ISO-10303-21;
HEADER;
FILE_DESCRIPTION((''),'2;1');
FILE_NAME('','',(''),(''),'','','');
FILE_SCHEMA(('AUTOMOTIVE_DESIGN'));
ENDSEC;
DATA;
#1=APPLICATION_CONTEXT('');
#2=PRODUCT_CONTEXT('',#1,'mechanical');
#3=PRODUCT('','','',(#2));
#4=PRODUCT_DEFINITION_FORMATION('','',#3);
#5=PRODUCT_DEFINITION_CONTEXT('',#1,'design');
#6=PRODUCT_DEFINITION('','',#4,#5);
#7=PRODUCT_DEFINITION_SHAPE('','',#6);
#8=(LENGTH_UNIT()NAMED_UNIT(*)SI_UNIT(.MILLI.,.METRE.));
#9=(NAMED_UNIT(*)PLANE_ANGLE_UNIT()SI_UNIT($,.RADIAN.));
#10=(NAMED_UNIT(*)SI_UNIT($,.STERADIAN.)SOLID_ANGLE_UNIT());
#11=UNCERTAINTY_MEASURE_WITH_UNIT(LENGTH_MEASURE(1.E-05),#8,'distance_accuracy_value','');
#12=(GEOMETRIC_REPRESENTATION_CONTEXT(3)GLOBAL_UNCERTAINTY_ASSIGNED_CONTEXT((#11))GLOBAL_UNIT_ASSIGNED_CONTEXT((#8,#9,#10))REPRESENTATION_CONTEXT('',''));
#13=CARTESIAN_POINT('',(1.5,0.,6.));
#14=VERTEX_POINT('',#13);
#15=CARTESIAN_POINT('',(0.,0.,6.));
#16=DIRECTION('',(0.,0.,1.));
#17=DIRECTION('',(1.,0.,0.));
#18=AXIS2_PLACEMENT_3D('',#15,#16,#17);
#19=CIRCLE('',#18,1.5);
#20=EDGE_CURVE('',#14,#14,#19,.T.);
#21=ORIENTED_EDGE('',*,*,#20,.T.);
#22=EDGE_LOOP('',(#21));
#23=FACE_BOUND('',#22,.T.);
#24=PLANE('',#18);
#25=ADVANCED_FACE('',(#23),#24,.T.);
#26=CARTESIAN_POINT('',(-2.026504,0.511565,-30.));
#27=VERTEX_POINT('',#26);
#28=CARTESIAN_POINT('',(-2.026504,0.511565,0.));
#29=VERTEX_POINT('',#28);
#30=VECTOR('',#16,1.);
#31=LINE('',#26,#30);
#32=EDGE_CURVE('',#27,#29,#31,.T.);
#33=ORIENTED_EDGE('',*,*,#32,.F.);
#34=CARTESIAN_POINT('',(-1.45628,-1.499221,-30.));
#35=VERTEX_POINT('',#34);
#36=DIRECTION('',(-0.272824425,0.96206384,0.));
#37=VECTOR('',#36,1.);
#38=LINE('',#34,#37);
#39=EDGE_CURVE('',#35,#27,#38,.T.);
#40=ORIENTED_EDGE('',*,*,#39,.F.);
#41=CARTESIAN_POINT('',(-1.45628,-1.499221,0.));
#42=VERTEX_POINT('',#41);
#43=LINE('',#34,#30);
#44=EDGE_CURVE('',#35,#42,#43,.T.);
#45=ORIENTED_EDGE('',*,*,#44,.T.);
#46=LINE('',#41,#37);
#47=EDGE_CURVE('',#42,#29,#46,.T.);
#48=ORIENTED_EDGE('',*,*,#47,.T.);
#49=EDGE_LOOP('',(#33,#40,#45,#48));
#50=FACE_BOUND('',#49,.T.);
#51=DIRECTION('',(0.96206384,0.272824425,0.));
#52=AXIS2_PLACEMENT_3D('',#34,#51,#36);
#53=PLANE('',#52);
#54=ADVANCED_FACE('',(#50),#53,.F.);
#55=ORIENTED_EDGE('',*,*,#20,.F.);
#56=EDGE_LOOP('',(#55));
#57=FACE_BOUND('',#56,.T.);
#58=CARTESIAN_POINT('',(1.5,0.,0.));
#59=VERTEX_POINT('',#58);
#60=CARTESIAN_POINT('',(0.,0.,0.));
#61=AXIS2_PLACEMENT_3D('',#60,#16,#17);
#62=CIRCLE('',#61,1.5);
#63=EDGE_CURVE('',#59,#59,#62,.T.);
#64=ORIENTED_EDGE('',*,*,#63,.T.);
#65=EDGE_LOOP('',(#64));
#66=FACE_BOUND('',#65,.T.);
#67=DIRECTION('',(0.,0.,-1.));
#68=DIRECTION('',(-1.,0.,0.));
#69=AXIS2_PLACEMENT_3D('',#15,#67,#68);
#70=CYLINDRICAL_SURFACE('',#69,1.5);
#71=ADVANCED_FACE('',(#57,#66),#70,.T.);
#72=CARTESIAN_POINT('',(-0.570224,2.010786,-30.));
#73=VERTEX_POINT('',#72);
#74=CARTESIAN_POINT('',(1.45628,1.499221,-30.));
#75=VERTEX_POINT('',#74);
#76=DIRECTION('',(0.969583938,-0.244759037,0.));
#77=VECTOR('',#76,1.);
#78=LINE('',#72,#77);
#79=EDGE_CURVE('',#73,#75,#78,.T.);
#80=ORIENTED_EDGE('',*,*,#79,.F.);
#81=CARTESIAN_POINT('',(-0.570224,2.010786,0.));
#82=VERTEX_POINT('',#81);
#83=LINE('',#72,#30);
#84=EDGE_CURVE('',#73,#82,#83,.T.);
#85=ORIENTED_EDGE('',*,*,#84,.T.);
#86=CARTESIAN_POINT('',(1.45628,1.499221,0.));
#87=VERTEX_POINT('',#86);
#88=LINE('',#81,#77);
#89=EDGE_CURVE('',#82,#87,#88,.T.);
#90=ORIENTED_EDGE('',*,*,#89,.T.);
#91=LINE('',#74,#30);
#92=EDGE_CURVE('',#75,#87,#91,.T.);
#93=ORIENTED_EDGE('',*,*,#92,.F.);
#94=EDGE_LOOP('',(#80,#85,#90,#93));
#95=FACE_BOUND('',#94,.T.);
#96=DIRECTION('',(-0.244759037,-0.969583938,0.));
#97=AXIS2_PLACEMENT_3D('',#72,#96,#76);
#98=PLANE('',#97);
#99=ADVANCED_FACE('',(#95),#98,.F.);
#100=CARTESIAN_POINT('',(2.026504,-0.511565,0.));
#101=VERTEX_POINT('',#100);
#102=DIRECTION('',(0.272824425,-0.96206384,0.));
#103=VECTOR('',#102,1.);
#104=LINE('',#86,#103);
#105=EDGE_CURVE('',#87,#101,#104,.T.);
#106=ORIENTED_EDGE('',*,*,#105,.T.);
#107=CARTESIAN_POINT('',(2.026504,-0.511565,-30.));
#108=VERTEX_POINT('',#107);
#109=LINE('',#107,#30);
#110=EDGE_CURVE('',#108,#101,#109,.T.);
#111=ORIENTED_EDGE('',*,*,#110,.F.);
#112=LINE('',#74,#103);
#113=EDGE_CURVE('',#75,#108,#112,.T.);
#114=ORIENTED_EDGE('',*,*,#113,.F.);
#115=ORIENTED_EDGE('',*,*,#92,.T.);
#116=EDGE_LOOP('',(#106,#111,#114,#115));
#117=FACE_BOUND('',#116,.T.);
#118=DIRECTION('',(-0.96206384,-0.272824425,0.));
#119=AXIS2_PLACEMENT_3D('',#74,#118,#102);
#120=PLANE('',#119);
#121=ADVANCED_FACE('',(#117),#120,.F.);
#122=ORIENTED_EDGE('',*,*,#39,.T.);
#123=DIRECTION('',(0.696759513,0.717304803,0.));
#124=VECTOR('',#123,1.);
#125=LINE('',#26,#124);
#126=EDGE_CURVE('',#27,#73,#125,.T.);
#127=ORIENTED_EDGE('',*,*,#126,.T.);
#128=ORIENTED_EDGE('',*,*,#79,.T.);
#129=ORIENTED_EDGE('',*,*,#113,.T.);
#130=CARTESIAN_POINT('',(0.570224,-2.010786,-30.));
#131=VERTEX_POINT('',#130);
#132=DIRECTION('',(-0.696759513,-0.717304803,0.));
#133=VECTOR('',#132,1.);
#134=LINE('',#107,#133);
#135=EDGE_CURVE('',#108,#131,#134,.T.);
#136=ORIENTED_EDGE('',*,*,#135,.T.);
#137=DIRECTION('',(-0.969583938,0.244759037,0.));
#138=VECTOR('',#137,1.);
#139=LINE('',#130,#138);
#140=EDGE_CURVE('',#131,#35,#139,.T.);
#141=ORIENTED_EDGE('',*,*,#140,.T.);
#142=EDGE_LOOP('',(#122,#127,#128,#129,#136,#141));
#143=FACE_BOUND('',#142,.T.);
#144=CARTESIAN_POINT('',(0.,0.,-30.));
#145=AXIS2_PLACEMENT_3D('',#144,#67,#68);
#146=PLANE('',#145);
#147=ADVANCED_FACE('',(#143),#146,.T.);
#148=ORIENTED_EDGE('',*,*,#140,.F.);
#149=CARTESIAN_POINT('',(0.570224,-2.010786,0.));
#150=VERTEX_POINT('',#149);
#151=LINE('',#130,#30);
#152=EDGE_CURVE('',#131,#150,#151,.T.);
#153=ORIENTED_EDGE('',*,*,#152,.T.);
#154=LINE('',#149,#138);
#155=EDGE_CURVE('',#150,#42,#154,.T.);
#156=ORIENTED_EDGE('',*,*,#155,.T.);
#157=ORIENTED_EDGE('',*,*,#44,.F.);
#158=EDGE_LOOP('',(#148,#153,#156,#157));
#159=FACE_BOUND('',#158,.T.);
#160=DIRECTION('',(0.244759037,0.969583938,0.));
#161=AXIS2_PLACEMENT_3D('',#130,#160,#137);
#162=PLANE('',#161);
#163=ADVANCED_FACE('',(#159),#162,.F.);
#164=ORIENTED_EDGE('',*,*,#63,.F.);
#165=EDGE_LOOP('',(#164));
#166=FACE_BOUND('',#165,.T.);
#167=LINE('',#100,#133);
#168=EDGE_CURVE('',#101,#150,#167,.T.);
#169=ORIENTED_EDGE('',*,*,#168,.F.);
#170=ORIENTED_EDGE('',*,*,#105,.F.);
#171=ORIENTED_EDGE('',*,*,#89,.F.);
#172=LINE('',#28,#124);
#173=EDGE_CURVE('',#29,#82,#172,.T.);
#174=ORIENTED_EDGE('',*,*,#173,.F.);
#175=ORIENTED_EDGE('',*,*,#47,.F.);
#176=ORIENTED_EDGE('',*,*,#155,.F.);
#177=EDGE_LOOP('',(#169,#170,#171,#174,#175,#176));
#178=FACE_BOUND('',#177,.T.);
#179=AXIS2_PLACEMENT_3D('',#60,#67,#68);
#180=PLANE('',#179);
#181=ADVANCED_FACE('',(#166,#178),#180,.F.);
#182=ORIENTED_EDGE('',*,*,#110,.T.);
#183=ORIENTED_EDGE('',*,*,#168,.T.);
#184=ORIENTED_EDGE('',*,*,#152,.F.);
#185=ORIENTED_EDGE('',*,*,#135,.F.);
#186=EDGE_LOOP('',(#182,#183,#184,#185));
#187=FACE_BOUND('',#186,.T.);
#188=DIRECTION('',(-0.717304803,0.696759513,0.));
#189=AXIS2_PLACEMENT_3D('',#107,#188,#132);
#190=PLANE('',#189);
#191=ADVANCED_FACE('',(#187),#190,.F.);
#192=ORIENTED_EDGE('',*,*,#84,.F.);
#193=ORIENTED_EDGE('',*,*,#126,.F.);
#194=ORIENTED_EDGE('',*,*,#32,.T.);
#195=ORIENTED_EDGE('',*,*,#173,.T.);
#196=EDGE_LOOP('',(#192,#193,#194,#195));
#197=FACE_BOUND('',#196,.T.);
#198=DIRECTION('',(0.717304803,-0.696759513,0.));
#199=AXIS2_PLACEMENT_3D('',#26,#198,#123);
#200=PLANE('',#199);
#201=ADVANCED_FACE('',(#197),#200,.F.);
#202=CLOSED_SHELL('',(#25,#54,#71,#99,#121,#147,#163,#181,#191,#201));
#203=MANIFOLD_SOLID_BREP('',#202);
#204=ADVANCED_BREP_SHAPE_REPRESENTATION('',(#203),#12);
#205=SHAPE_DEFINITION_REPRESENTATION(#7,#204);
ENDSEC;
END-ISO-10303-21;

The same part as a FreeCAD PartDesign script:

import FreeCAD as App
import Part
import Sketcher
from FreeCAD import Vector

doc = App.newDocument("Part")
body = doc.addObject("PartDesign::Body", "Body")

sketch1 = body.newObject("Sketcher::SketchObject", "Sketch")
sketch1.AttachmentSupport = (doc.getObject("XY_Plane"), [""])
sketch1.MapMode = "FlatFace"
sketch1.addGeometry(Part.Circle(Vector(0, 0, 0), Vector(0, 0, 1), 1.5), False)
sketch1.addConstraint([
    Sketcher.Constraint("Coincident", 0, 3, -1, 1),
    Sketcher.Constraint("Diameter", 0, 3.0),
])
pad1 = body.newObject("PartDesign::Pad", "Pad")
pad1.Profile = sketch1
pad1.Length = 6

sketch2 = body.newObject("Sketcher::SketchObject", "Sketch001")
sketch2.AttachmentSupport = (doc.getObject("XY_Plane"), [""])
sketch2.MapMode = "FlatFace"
sketch2.addGeometry([
    Part.LineSegment(Vector(-1.5, -1.5, 0), Vector(-2, 0.5, 0)),
    Part.LineSegment(Vector(-2, 0.5, 0), Vector(-0.6, 2, 0)),
    Part.LineSegment(Vector(-0.6, 2, 0), Vector(1.5, 1.5, 0)),
    Part.LineSegment(Vector(1.5, 1.5, 0), Vector(2, -0.5, 0)),
    Part.LineSegment(Vector(2, -0.5, 0), Vector(0.6, -2, 0)),
    Part.LineSegment(Vector(0.6, -2, 0), Vector(-1.5, -1.5, 0)),
], False)
sketch2.addConstraint([
    Sketcher.Constraint("Coincident", 0, 2, 1, 1),
    Sketcher.Constraint("Coincident", 1, 2, 2, 1),
    Sketcher.Constraint("Coincident", 2, 2, 3, 1),
    Sketcher.Constraint("Coincident", 3, 2, 4, 1),
    Sketcher.Constraint("Coincident", 4, 2, 5, 1),
    Sketcher.Constraint("Coincident", 5, 2, 0, 1),
    Sketcher.Constraint("Symmetric", 0, 2, 3, 2, -1, 1),
    Sketcher.Constraint("Symmetric", 1, 2, 4, 2, -1, 1),
    Sketcher.Constraint("Symmetric", 2, 2, 5, 2, -1, 1),
    Sketcher.Constraint("Equal", 0, 1),
    Sketcher.Constraint("Equal", 1, 2),
    Sketcher.Constraint("DistanceX", -1, 1, 2, 2, 1.45628),
    Sketcher.Constraint("DistanceY", -1, 1, 2, 2, 1.499221),
    Sketcher.Constraint("DistanceX", 0, 2, 1, 2, 1.45628),
    Sketcher.Constraint("DistanceY", 0, 2, 1, 2, 1.499221),
])
pad2 = body.newObject("PartDesign::Pad", "Pad001")
pad2.Profile = sketch2
pad2.Length = 30
pad2.Reversed = True

doc.recompute()
